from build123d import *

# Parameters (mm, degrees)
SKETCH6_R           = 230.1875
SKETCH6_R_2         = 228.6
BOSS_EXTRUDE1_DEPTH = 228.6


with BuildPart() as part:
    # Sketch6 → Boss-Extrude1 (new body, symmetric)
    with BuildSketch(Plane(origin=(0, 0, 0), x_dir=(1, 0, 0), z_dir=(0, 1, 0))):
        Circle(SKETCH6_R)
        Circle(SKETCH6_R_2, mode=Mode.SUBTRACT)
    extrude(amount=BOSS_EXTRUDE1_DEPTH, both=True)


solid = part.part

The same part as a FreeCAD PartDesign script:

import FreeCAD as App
import Part
import Sketcher
from FreeCAD import Vector
Q = App.Units.Quantity

doc = App.newDocument("Part")
body = doc.addObject("PartDesign::Body", "Body")

sketch1 = body.newObject("Sketcher::SketchObject", "Sketch")
sketch1.AttachmentSupport = (doc.getObject("XZ_Plane"), [""])
sketch1.MapMode = "FlatFace"
sketch1.addGeometry(Part.Circle(Vector(0, 0, 0), Vector(0, 0, 1), 230), False)
sketch1.addGeometry(Part.Circle(Vector(0, 0, 0), Vector(0, 0, 1), 229), False)
sketch1.addConstraint(Sketcher.Constraint("Coincident", 0, 3, -1, 1))
sketch1.addConstraint(Sketcher.Constraint("Coincident", 1, 3, -1, 1))
sketch1.addConstraint(Sketcher.Constraint("Diameter", 1, Q("18 in")))
sketch1.addConstraint(Sketcher.Constraint("Diameter", 0, Q("18.125 in")))
pad1 = body.newObject("PartDesign::Pad", "Pad")
pad1.Profile = sketch1
pad1.Length = Q("18 in")
pad1.Midplane = True

doc.recompute()
